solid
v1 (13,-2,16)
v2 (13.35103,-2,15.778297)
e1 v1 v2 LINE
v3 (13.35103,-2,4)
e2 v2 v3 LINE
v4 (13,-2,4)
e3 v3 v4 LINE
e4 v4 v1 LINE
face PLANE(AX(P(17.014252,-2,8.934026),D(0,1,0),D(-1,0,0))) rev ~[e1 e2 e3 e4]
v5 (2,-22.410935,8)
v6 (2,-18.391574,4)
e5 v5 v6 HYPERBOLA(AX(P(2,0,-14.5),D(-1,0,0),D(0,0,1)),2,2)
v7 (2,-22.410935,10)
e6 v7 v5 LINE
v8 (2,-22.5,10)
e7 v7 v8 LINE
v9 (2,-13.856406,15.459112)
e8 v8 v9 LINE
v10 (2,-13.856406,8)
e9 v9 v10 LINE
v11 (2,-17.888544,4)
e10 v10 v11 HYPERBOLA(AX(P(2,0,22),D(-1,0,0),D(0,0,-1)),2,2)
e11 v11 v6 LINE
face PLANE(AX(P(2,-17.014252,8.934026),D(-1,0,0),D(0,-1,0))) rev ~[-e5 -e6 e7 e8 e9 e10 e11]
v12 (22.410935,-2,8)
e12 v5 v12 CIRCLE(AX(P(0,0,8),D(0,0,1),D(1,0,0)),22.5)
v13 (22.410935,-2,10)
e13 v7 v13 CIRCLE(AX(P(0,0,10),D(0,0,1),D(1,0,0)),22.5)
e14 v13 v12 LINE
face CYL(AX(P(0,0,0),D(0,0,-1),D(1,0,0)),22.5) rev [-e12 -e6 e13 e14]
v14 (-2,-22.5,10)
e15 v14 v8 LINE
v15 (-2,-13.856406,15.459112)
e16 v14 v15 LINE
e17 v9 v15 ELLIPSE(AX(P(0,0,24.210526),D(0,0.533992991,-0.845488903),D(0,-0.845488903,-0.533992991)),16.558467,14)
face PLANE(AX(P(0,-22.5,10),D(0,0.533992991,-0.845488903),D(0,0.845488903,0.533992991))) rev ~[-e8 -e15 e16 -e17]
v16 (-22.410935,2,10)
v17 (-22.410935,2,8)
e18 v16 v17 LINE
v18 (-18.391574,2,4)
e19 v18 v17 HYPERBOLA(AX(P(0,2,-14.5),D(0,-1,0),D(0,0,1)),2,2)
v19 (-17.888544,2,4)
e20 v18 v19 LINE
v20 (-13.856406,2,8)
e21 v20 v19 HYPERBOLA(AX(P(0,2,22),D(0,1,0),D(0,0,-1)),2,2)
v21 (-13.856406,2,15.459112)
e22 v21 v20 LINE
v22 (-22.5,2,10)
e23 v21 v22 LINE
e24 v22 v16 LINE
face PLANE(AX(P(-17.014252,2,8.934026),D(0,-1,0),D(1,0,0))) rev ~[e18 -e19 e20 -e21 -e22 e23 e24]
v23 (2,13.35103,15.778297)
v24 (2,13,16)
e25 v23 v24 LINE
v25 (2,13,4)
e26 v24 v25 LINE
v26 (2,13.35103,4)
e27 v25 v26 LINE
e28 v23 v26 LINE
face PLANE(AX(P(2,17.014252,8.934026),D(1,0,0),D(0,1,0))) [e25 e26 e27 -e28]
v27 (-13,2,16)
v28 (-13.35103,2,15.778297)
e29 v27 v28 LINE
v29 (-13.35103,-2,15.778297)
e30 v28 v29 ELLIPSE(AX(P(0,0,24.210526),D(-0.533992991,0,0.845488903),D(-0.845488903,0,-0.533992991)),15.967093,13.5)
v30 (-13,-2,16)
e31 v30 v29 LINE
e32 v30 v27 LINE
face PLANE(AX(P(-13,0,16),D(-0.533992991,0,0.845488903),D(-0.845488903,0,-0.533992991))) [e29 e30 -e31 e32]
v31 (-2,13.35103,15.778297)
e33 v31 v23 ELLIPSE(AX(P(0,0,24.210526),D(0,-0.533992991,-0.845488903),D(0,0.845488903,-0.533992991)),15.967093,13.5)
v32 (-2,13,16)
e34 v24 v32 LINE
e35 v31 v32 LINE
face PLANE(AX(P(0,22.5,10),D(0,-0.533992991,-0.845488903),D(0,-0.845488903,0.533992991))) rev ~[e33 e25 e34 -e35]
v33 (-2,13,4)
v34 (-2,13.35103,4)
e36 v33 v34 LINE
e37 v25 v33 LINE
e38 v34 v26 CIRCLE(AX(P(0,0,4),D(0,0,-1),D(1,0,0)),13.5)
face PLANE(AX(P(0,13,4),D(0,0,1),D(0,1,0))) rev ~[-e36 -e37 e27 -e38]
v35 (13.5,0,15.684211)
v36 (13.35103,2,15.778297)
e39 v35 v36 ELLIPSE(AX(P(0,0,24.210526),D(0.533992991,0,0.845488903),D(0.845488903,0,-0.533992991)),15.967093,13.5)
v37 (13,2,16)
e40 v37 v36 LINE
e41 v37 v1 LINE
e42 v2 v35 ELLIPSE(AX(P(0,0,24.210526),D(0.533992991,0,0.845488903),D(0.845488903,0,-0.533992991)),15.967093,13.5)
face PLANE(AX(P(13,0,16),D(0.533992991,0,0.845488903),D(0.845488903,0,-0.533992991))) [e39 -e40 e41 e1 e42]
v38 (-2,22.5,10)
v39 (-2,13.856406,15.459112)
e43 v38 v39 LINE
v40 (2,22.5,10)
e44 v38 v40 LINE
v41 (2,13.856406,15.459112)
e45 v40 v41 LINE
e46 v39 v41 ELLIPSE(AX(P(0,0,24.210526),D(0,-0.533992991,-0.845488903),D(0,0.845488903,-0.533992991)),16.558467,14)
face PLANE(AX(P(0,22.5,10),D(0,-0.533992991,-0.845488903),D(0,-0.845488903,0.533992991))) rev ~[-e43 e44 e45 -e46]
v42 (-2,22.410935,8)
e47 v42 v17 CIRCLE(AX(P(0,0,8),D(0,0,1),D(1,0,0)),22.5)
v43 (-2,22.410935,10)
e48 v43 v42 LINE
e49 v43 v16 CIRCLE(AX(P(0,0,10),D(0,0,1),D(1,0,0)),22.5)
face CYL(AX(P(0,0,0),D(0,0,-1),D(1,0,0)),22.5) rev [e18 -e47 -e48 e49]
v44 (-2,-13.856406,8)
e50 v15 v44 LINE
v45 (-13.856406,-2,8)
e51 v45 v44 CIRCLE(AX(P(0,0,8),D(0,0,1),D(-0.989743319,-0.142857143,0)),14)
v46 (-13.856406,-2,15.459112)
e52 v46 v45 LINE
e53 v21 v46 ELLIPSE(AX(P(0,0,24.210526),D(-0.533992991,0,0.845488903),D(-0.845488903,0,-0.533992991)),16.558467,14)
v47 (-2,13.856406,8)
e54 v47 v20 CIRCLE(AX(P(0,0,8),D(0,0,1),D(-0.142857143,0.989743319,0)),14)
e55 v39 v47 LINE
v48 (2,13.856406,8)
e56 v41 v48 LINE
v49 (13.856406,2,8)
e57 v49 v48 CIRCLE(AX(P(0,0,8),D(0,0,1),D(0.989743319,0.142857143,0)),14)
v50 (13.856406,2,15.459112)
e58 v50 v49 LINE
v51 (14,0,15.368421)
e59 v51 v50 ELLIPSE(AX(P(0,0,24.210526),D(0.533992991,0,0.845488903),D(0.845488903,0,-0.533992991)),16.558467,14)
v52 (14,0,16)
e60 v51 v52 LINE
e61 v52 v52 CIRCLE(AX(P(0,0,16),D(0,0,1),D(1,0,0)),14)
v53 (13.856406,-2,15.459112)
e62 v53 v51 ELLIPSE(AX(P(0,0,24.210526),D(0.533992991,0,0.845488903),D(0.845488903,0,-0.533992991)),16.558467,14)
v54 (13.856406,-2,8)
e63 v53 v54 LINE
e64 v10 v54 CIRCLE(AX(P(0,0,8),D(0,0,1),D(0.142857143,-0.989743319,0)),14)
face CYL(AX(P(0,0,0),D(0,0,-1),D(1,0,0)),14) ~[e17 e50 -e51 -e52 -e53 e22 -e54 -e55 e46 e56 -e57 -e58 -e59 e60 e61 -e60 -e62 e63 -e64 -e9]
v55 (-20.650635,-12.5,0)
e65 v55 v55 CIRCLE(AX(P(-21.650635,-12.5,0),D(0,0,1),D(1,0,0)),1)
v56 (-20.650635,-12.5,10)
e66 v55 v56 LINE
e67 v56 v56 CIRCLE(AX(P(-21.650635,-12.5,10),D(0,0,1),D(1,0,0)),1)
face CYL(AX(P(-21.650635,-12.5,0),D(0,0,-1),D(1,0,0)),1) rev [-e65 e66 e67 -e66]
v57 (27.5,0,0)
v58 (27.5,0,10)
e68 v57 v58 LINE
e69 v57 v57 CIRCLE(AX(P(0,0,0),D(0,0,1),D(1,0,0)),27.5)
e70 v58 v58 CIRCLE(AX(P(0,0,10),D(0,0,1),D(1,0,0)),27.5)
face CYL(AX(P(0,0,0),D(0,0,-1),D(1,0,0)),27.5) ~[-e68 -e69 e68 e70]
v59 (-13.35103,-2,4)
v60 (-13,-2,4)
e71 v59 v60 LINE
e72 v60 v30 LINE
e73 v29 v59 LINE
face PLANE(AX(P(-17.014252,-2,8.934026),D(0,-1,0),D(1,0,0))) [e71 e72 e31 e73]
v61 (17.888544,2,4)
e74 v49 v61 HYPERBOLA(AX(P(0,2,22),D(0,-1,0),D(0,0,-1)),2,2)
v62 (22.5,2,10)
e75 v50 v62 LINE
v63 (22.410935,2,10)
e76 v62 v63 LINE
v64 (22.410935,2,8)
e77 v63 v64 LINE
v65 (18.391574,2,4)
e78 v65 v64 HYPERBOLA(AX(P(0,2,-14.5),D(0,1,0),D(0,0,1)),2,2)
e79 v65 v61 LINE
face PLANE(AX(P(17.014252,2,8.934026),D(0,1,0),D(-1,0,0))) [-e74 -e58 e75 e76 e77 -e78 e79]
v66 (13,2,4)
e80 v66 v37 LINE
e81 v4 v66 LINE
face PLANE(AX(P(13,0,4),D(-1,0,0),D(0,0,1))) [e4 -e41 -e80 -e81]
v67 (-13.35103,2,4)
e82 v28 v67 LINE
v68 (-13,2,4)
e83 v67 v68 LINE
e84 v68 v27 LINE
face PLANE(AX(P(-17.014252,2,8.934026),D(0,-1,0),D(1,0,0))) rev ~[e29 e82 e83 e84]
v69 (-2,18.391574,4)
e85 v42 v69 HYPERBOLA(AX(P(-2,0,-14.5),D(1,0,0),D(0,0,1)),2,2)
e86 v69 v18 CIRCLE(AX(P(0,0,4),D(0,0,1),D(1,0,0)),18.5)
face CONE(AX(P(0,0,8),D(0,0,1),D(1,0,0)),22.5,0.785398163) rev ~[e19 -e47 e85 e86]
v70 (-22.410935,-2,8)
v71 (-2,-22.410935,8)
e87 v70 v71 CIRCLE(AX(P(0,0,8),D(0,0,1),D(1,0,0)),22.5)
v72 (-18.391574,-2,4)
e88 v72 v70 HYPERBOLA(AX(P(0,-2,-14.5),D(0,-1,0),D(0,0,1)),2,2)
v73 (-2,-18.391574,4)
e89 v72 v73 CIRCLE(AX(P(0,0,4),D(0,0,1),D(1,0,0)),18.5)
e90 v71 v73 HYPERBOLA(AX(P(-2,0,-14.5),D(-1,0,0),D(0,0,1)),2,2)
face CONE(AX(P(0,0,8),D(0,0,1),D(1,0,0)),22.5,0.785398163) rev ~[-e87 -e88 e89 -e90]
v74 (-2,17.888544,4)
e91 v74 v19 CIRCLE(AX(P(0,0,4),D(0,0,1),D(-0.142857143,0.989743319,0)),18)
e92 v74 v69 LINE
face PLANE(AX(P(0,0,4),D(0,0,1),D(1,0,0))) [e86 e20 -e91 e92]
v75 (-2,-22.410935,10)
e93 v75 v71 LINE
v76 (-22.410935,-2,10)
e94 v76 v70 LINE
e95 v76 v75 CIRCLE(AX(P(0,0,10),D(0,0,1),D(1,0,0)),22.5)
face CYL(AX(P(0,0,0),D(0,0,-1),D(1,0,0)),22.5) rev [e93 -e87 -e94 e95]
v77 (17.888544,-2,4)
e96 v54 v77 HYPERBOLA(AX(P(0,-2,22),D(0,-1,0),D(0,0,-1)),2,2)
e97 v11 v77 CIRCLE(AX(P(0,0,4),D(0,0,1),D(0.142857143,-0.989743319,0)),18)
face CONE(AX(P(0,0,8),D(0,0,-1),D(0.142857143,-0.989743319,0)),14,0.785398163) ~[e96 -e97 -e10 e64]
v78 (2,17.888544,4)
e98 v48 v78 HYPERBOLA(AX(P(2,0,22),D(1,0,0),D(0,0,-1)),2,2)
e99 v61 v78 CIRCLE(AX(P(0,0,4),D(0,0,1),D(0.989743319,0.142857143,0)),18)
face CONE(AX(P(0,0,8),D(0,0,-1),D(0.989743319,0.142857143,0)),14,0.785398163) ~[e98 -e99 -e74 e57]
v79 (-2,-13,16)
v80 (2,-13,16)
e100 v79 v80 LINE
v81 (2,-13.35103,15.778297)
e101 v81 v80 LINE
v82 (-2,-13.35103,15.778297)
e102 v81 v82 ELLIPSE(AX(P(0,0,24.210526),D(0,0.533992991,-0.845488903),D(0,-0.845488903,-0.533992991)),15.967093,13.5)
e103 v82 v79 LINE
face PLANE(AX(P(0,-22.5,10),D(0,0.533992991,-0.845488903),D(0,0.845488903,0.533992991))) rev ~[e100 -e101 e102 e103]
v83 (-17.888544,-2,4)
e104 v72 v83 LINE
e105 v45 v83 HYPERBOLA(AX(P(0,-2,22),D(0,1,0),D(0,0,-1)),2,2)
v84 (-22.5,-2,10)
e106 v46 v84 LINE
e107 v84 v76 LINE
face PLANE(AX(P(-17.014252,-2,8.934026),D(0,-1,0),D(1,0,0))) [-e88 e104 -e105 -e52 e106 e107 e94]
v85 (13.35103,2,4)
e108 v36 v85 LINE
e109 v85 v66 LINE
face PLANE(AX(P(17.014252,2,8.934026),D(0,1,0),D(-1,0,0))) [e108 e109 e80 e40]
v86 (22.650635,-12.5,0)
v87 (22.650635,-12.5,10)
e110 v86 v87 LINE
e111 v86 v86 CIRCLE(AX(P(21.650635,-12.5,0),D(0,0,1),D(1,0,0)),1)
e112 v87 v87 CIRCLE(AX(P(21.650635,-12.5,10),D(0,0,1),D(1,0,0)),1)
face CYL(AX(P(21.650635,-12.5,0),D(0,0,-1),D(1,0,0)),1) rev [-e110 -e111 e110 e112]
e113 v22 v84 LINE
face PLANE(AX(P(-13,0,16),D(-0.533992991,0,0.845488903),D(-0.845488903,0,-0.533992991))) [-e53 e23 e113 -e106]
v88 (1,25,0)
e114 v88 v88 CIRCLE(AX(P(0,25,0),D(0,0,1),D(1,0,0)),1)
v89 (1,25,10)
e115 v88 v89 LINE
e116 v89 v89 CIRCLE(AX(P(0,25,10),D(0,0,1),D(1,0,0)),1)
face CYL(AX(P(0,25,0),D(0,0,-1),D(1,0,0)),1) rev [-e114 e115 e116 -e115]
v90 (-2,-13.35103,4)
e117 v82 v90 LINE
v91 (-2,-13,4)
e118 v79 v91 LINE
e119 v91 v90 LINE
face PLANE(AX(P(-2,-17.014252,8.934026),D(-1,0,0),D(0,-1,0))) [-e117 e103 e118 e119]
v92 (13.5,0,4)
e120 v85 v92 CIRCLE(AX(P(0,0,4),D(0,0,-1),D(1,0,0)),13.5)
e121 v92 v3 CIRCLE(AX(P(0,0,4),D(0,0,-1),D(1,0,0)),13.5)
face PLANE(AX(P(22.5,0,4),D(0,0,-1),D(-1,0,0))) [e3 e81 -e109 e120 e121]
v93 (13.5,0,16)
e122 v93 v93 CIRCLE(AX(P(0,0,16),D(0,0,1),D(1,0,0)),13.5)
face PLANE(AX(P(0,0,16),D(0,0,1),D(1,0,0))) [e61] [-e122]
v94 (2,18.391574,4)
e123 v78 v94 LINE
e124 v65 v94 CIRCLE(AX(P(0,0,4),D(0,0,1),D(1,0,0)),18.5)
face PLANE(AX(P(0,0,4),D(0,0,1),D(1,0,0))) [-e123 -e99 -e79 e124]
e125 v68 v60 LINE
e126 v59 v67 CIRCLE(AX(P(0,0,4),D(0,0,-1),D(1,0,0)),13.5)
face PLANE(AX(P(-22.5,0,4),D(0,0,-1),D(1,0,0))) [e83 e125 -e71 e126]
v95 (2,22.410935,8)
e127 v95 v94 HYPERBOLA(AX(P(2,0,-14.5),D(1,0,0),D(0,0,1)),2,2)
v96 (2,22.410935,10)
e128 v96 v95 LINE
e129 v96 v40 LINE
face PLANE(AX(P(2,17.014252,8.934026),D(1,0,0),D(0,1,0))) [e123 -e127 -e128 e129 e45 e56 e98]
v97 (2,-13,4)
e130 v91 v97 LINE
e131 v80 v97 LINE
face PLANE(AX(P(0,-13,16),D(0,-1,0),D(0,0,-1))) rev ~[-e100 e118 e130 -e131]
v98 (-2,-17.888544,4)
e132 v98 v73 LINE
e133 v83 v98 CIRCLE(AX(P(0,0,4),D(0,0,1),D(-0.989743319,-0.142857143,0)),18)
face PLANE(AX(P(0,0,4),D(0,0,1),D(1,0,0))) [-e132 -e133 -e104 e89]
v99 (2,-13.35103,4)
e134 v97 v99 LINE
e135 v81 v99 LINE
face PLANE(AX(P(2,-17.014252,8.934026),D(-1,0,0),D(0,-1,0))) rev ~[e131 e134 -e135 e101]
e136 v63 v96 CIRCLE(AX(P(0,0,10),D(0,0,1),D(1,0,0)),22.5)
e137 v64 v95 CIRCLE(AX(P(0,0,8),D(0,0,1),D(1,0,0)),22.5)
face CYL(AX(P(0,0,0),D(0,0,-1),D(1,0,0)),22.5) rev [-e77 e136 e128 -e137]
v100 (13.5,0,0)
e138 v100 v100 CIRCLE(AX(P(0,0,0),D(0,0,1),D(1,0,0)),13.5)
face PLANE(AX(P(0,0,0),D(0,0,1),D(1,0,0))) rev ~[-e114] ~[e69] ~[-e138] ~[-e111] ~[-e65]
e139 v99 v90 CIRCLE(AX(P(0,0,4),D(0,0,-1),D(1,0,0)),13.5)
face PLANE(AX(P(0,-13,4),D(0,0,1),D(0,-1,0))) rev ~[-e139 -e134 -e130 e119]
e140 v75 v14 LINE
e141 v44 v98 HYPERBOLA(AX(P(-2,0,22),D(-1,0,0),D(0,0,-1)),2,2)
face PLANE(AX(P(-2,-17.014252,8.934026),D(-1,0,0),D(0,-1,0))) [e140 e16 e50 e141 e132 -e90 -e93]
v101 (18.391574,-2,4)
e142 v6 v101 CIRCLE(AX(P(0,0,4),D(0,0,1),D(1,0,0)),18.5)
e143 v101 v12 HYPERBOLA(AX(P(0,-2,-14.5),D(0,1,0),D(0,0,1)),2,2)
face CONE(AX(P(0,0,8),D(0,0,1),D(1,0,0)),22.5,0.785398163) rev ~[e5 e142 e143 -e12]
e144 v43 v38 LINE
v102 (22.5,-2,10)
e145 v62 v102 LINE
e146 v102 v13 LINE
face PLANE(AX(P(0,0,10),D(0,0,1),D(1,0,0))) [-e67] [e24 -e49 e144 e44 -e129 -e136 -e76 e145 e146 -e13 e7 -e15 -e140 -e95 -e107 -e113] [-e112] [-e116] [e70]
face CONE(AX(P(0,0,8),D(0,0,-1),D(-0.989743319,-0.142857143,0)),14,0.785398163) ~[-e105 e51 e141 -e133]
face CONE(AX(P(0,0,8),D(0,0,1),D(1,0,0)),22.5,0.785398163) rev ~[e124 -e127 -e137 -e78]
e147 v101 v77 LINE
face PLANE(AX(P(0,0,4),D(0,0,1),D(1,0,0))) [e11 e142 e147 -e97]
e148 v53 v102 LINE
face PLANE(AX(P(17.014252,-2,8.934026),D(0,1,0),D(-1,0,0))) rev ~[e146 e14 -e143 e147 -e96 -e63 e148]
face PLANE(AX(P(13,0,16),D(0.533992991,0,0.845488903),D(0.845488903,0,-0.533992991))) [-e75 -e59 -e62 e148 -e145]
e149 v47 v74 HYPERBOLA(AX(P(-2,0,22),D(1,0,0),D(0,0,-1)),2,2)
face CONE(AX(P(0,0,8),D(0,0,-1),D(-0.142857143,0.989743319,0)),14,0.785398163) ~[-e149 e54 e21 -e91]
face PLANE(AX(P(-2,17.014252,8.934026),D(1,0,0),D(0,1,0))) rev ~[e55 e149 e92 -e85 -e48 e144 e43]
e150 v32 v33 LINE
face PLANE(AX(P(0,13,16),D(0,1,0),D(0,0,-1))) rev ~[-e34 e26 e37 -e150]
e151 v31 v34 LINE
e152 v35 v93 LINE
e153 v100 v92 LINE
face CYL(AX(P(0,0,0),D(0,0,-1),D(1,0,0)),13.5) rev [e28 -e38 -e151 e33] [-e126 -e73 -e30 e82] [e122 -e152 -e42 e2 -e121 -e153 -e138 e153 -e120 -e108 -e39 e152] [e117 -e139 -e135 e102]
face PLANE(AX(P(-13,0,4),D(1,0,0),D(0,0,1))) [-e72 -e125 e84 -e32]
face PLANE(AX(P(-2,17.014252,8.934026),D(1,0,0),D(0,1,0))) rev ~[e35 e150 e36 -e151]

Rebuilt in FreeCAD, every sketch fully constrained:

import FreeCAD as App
import Part
import Sketcher

V = App.Vector


def edges_at(feature, points):
    """Names of the edges that pass closest to the given points."""
    edges = feature.Shape.Edges
    near = lambda p: min(range(len(edges)), key=lambda i: edges[i].distToShape(Part.Vertex(*p))[0])
    return sorted({f"Edge{near(p) + 1}" for p in points})


def add_polygon(sketch, points):
    """Adds a closed chain of lines whose ends are joined by coincident constraints."""
    first, n = sketch.GeometryCount, len(points)
    for a, b in zip(points, points[1:] + points[:1]):
        sketch.addGeometry(Part.LineSegment(App.Vector(*a, 0), App.Vector(*b, 0)), False)
    for i in range(n):
        sketch.addConstraint(Sketcher.Constraint("Coincident", first + i, 2, first + (i + 1) % n, 1))

doc = App.newDocument("Part")
body = doc.addObject("PartDesign::Body", "Body")

sketch1 = body.newObject("Sketcher::SketchObject", "Sketch")
sketch1.AttachmentSupport = (doc.getObject("XY_Plane"), [""])
sketch1.MapMode = "FlatFace"
sketch1.addGeometry(Part.Circle(V(0, 0, 0), V(0, 0, 1), 27.5), False)
sketch1.addGeometry(Part.Circle(V(-21.7, -12.5, 0), V(0, 0, 1), 1), False)
sketch1.addGeometry(Part.Circle(V(21.7, -12.5, 0), V(0, 0, 1), 1), False)
sketch1.addGeometry(Part.Circle(V(0, 0, 0), V(0, 0, 1), 22.5), False)
sketch1.addGeometry(Part.Circle(V(0, 25, 0), V(0, 0, 1), 1), False)
sketch1.addConstraint(Sketcher.Constraint("Coincident", 0, 3, -1, 1))
sketch1.addConstraint(Sketcher.Constraint("Coincident", 3, 3, -1, 1))
sketch1.addConstraint(Sketcher.Constraint("Equal", 1, 2))
sketch1.addConstraint(Sketcher.Constraint("Equal", 2, 4))
sketch1.addConstraint(Sketcher.Constraint("Symmetric", 1, 3, 2, 3, -2))
sketch1.addConstraint(Sketcher.Constraint("PointOnObject", 4, 3, -2))
sketch1.addConstraint(Sketcher.Constraint("Diameter", 0, 55.0))
sketch1.addConstraint(Sketcher.Constraint("Diameter", 1, 2.0))
sketch1.addConstraint(Sketcher.Constraint("Diameter", 3, 45.0))
sketch1.addConstraint(Sketcher.Constraint("DistanceY", -1, 1, 4, 3, 25.0))
sketch1.addConstraint(Sketcher.Constraint("DistanceY", 1, 3, -1, 1, 12.5))
sketch1.addConstraint(Sketcher.Constraint("DistanceX", 1, 3, 2, 3, 43.30127))
pad1 = body.newObject("PartDesign::Pad", "Pad")
pad1.Profile = sketch1
pad1.Length = 10

sketch2 = body.newObject("Sketcher::SketchObject", "Sketch001")
sketch2.AttachmentSupport = (doc.getObject("XY_Plane"), [""])
sketch2.MapMode = "FlatFace"
sketch2.addGeometry(Part.Circle(V(0, 0, 0), V(0, 0, 1), 22), False)
sketch2.addGeometry(Part.Circle(V(0, 0, 0), V(0, 0, 1), 14), False)
sketch2.addConstraint(Sketcher.Constraint("Coincident", 0, 3, -1, 1))
sketch2.addConstraint(Sketcher.Constraint("Coincident", 1, 3, -1, 1))
sketch2.addConstraint(Sketcher.Constraint("Diameter", 0, 45.0))
sketch2.addConstraint(Sketcher.Constraint("Diameter", 1, 28.0))
pad2 = body.newObject("PartDesign::Pad", "Pad001")
pad2.Profile = sketch2
pad2.Length = 4
doc.recompute()

chamfer = body.newObject("PartDesign::Chamfer", "Chamfer")
chamfer.Base = (pad2, edges_at(pad2, [(-22.5, 0, 4)]))
chamfer.Size = 4

sketch3 = body.newObject("Sketcher::SketchObject", "Sketch002")
sketch3.AttachmentSupport = (doc.getObject("XZ_Plane"), [""])
sketch3.MapMode = "FlatFace"
add_polygon(sketch3, [(22, 4), (22, 10), (13, 16), (13, 4)])
add_polygon(sketch3, [(-22, 10), (-22, 4), (-13, 4), (-13, 16)])
sketch3.addConstraint(Sketcher.Constraint("Vertical", 0))
sketch3.addConstraint(Sketcher.Constraint("Vertical", 2))
sketch3.addConstraint(Sketcher.Constraint("Horizontal", 3))
sketch3.addConstraint(Sketcher.Constraint("Vertical", 4))
sketch3.addConstraint(Sketcher.Constraint("Horizontal", 5))
sketch3.addConstraint(Sketcher.Constraint("Vertical", 6))
sketch3.addConstraint(Sketcher.Constraint("Symmetric", 3, 2, 4, 2, -2))
sketch3.addConstraint(Sketcher.Constraint("Symmetric", 1, 2, 6, 2, -2))
sketch3.addConstraint(Sketcher.Constraint("Horizontal", 0, 2, 7, 2))
sketch3.addConstraint(Sketcher.Constraint("DistanceY", 0, 1, 0, 2, 6.0))
sketch3.addConstraint(Sketcher.Constraint("DistanceY", 2, 2, 2, 1, 12.0))
sketch3.addConstraint(Sketcher.Constraint("DistanceX", 3, 1, 3, 2, 9.5))
sketch3.addConstraint(Sketcher.Constraint("DistanceY", -1, 1, 0, 2, 10.0))
sketch3.addConstraint(Sketcher.Constraint("DistanceX", -1, 1, 1, 2, 13.0))
pad3 = body.newObject("PartDesign::Pad", "Pad002")
pad3.Profile = sketch3
pad3.Length = 4
pad3.Midplane = True

sketch4 = body.newObject("Sketcher::SketchObject", "Sketch003")
sketch4.AttachmentSupport = (doc.getObject("YZ_Plane"), [""])
sketch4.MapMode = "FlatFace"
add_polygon(sketch4, [(13, 4), (22, 4), (22, 10), (13, 16)])
add_polygon(sketch4, [(-22, 4), (-13, 4), (-13, 16), (-22, 10)])
sketch4.addConstraint(Sketcher.Constraint("Horizontal", 0))
sketch4.addConstraint(Sketcher.Constraint("Vertical", 1))
sketch4.addConstraint(Sketcher.Constraint("Vertical", 3))
sketch4.addConstraint(Sketcher.Constraint("Horizontal", 4))
sketch4.addConstraint(Sketcher.Constraint("Vertical", 5))
sketch4.addConstraint(Sketcher.Constraint("Vertical", 7))
sketch4.addConstraint(Sketcher.Constraint("Symmetric", 3, 2, 4, 2, -2))
sketch4.addConstraint(Sketcher.Constraint("Symmetric", 1, 2, 6, 2, -2))
sketch4.addConstraint(Sketcher.Constraint("Horizontal", 2, 2, 5, 2))
sketch4.addConstraint(Sketcher.Constraint("DistanceY", 1, 1, 1, 2, 6.0))
sketch4.addConstraint(Sketcher.Constraint("DistanceY", 3, 2, 3, 1, 12.0))
sketch4.addConstraint(Sketcher.Constraint("DistanceX", 0, 1, 0, 2, 9.5))
sketch4.addConstraint(Sketcher.Constraint("DistanceY", -1, 1, 0, 2, 4.0))
sketch4.addConstraint(Sketcher.Constraint("DistanceX", -1, 1, 2, 2, 13.0))
pad4 = body.newObject("PartDesign::Pad", "Pad003")
pad4.Profile = sketch4
pad4.Length = 4
pad4.Midplane = True

sketch5 = body.newObject("Sketcher::SketchObject", "Sketch004")
sketch5.AttachmentSupport = (doc.getObject("XY_Plane"), [""])
sketch5.MapMode = "FlatFace"
sketch5.addGeometry(Part.Circle(V(0, 0, 0), V(0, 0, 1), 14), False)
sketch5.addGeometry(Part.Circle(V(0, 0, 0), V(0, 0, 1), 14), False)
sketch5.addConstraint(Sketcher.Constraint("Coincident", 0, 3, -1, 1))
sketch5.addConstraint(Sketcher.Constraint("Coincident", 1, 3, -1, 1))
sketch5.addConstraint(Sketcher.Constraint("Diameter", 0, 28.0))
sketch5.addConstraint(Sketcher.Constraint("Diameter", 1, 27.0))
pad5 = body.newObject("PartDesign::Pad", "Pad004")
pad5.Profile = sketch5
pad5.Length = 16
doc.recompute()

chamfer2 = body.newObject("PartDesign::Chamfer", "Chamfer001")
chamfer2.Base = (pad5, edges_at(pad5, [
    (9.899, 9.899, 4),
    (9.899, -9.899, 4),
    (-9.899, -9.899, 4),
    (-9.899, 9.899, 4),
]))
chamfer2.Size = 4

doc.recompute()
